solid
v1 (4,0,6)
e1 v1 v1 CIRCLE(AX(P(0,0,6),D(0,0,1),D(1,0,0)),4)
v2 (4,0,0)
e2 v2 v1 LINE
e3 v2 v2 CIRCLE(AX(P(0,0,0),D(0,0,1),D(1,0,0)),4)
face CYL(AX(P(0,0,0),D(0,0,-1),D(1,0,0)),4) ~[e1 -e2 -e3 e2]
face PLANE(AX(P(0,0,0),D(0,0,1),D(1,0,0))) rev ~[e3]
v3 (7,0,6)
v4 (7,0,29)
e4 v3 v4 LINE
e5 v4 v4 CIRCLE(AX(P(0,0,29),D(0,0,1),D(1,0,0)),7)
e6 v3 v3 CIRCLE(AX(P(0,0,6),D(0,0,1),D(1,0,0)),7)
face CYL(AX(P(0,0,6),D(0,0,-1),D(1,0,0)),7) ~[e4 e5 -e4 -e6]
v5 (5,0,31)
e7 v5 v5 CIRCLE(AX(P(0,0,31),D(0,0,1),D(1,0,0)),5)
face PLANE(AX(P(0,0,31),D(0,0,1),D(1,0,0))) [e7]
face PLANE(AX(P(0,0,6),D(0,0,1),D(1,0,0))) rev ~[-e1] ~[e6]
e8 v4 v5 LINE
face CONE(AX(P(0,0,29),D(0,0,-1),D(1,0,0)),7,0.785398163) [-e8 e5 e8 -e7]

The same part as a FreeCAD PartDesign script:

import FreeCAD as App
import Part
import Sketcher
Q = App.Units.Quantity


def edges_at(feature, points):
    """Names of the edges that pass closest to the given points."""
    edges = feature.Shape.Edges
    near = lambda p: min(range(len(edges)), key=lambda i: edges[i].distToShape(Part.Vertex(*p))[0])
    return sorted({f"Edge{near(p) + 1}" for p in points})

doc = App.newDocument("Part")
body = doc.addObject("PartDesign::Body", "Body")

sketch1 = body.newObject("Sketcher::SketchObject", "Sketch")
sketch1.AttachmentSupport = (doc.getObject("XY_Plane"), [""])
sketch1.MapMode = "FlatFace"
sketch1.addGeometry(Part.Circle(App.Vector(0, 0, 0), App.Vector(0, 0, 1), 4), False)
sketch1.addConstraint(Sketcher.Constraint("Coincident", 0, 3, -1, 1))
sketch1.addConstraint(Sketcher.Constraint("Diameter", 0, Q("8 mm")))
pad1 = body.newObject("PartDesign::Pad", "Pad")
pad1.Profile = sketch1
pad1.Length = 6

sketch2 = body.newObject("Sketcher::SketchObject", "Sketch001")
sketch2.AttachmentSupport = (doc.getObject("XY_Plane"), [""])
sketch2.MapMode = "FlatFace"
sketch2.AttachmentOffset = App.Placement(App.Vector(0, 0, 6), App.Rotation())
sketch2.addGeometry(Part.Circle(App.Vector(0, 0, 0), App.Vector(0, 0, 1), 7), False)
sketch2.addConstraint(Sketcher.Constraint("Coincident", 0, 3, -1, 1))
sketch2.addConstraint(Sketcher.Constraint("Diameter", 0, Q("14 mm")))
pad2 = body.newObject("PartDesign::Pad", "Pad001")
pad2.Profile = sketch2
pad2.Length = 25
doc.recompute()

chamfer = body.newObject("PartDesign::Chamfer", "Chamfer")
chamfer.Base = (pad2, edges_at(pad2, [(-7, 0, 31)]))
chamfer.Size = 2

doc.recompute()
